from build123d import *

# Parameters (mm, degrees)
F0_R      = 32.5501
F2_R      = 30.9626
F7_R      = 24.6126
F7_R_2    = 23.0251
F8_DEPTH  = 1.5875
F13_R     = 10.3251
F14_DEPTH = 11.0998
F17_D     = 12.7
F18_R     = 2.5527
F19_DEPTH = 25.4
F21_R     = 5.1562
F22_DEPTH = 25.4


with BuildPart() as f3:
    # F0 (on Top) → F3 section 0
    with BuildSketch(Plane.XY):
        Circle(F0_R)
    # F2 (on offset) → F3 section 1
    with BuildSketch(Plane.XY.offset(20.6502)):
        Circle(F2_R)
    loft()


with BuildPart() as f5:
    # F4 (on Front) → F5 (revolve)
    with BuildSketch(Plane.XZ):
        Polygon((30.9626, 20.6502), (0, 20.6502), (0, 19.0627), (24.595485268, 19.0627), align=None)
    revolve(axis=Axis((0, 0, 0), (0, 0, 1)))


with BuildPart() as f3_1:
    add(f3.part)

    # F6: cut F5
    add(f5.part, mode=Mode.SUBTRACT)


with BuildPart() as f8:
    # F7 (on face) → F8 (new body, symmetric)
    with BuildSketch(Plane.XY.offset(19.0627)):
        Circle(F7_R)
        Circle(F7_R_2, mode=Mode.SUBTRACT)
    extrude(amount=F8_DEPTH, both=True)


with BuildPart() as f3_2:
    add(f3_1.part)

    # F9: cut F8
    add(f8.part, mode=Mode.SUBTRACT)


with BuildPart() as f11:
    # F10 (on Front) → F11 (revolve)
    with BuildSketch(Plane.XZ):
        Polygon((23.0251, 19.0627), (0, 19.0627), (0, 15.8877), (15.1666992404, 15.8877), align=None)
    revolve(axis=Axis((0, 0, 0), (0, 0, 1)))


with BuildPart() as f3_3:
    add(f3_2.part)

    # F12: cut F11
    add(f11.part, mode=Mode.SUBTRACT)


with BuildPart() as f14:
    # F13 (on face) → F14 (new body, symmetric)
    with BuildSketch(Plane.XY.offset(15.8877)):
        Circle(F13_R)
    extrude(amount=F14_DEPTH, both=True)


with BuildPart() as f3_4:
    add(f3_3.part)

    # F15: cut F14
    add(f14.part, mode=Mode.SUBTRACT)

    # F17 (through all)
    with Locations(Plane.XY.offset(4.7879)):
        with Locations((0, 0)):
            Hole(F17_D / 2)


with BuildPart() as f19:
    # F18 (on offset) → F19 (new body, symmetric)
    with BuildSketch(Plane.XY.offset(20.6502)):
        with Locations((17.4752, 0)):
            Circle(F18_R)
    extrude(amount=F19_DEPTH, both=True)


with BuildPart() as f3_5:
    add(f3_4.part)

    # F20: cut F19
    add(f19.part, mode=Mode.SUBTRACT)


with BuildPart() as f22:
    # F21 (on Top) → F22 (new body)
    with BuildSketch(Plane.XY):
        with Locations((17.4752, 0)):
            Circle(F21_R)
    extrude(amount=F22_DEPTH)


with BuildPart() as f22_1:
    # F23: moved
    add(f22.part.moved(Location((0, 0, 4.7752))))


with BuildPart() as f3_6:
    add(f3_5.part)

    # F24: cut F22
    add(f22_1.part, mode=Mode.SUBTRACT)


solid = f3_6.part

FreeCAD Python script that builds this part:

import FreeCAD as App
import Part
import Sketcher

V = App.Vector
Q = App.Units.Quantity

doc = App.newDocument("Part")
params = doc.addObject("Spreadsheet::Sheet", "Params")
for row, (alias, value) in enumerate([
    ("sketch1_diameter", "2.563 in"),
    ("sketch2_diameter", "2.438 in"),
    ("sketch3_width", "1.219 in"),
    ("sketch3_height", "0.0625 in"),
    ("revolution_angle", "360 deg"),
    ("sketch4_diameter", "1.938 in"),
    ("sketch4_diameter2", "1.813 in"),
    ("pad1_length", "0.125 in"),
    ("sketch5_height", "0.125 in"),
    ("revolution2_angle", "360 deg"),
    ("sketch6_diameter", "0.813 in"),
    ("pad2_length", "0.874 in"),
    ("sketch7_diameter", "0.5 in"),
    ("hole_diameter", "0.5 in"),
    ("sketch8_diameter", "0.201 in"),
    ("pad3_length", "2 in"),
    ("sketch9_diameter", "0.406 in"),
    ("pad4_length", "1 in"),
], start=1):
    params.set(f"A{row}", alias)
    params.set(f"B{row}", "=" + value)
    params.setAlias(f"B{row}", alias)

body = doc.addObject("PartDesign::Body", "Body")

# Sketch on XY plane
sketch1 = doc.addObject("Sketcher::SketchObject", "Sketch")
body.addObject(sketch1)
sketch1.AttachmentSupport = (doc.XY_Plane, [""])
sketch1.MapMode = "FlatFace"
sketch1.addGeometry(Part.Circle(V(0, 0, 0), V(0, 0, 1), 33), False)
sketch1.addConstraint([
    Sketcher.Constraint("Coincident", 0, 3, -1, 1),
    Sketcher.Constraint("Diameter", 0, Q("2.563 in")),
])
sketch1.setExpression("Constraints[1]", "Params.sketch1_diameter")

# Sketch on XY plane
sketch2 = doc.addObject("Sketcher::SketchObject", "Sketch001")
body.addObject(sketch2)
sketch2.AttachmentSupport = (doc.XY_Plane, [""])
sketch2.MapMode = "FlatFace"
sketch2.AttachmentOffset = App.Placement(V(0, 0, 0.813 * 25.4), App.Rotation())
sketch2.addGeometry(Part.Circle(V(0, 0, 0), V(0, 0, 1), 31), False)
sketch2.addConstraint([
    Sketcher.Constraint("Coincident", 0, 3, -1, 1),
    Sketcher.Constraint("Diameter", 0, Q("2.438 in")),
])
sketch2.setExpression("Constraints[1]", "Params.sketch2_diameter")

additiveloft = doc.addObject("PartDesign::AdditiveLoft", "AdditiveLoft")
body.addObject(additiveloft)
additiveloft.Profile = sketch1
additiveloft.Sections = [sketch2]
body2 = doc.addObject("PartDesign::Body", "Body001")

# Sketch on XZ plane
sketch3 = doc.addObject("Sketcher::SketchObject", "Sketch002")
body2.addObject(sketch3)
sketch3.AttachmentSupport = (doc.getObject("XZ_Plane001"), [""])
sketch3.MapMode = "FlatFace"
sketch3.addGeometry([
    Part.LineSegment(V(31, 20.7, 0), V(0, 20.7, 0)),
    Part.LineSegment(V(0, 20.7, 0), V(0, 19.1, 0)),
    Part.LineSegment(V(0, 19.1, 0), V(24.6, 19.1, 0)),
    Part.LineSegment(V(24.6, 19.1, 0), V(31, 20.7, 0)),
], False)
sketch3.addConstraint([
    Sketcher.Constraint("Coincident", 0, 2, 1, 1),
    Sketcher.Constraint("Coincident", 1, 2, 2, 1),
    Sketcher.Constraint("Coincident", 2, 2, 3, 1),
    Sketcher.Constraint("Coincident", 3, 2, 0, 1),
    Sketcher.Constraint("Horizontal", 0),
    Sketcher.Constraint("Vertical", 1),
    Sketcher.Constraint("Horizontal", 2),
    Sketcher.Constraint("PointOnObject", 0, 2, -2),
    Sketcher.Constraint("Angle", 3, Q("14 deg")),
    Sketcher.Constraint("DistanceX", 0, 2, 0, 1, Q("1.219 in")),
    Sketcher.Constraint("DistanceY", 1, 2, 1, 1, Q("0.0625 in")),
    Sketcher.Constraint("DistanceY", -1, 1, 0, 2, Q("0.813 in")),
])
sketch3.setExpression("Constraints[9]", "Params.sketch3_width")
sketch3.setExpression("Constraints[10]", "Params.sketch3_height")
revolution = doc.addObject("PartDesign::Revolution", "Revolution")
body2.addObject(revolution)
revolution.Profile = sketch3
revolution.ReferenceAxis = (sketch3, ["V_Axis"])
revolution.setExpression("Angle", "Params.revolution_angle")
doc.recompute()

boolean = doc.addObject("PartDesign::Boolean", "Boolean")
body.addObject(boolean)
boolean.Type = "Cut"
boolean.addObjects([body2])
body3 = doc.addObject("PartDesign::Body", "Body002")

# Sketch on XY plane
sketch4 = doc.addObject("Sketcher::SketchObject", "Sketch003")
body3.addObject(sketch4)
sketch4.AttachmentSupport = (doc.getObject("XY_Plane002"), [""])
sketch4.MapMode = "FlatFace"
sketch4.AttachmentOffset = App.Placement(V(0, 0, 0.7505 * 25.4), App.Rotation())
sketch4.addGeometry([
    Part.Circle(V(0, 0, 0), V(0, 0, 1), 25),
    Part.Circle(V(0, 0, 0), V(0, 0, 1), 23),
], False)
sketch4.addConstraint([
    Sketcher.Constraint("Coincident", 0, 3, -1, 1),
    Sketcher.Constraint("Coincident", 1, 3, -1, 1),
    Sketcher.Constraint("Diameter", 0, Q("1.938 in")),
    Sketcher.Constraint("Diameter", 1, Q("1.813 in")),
])
sketch4.setExpression("Constraints[2]", "Params.sketch4_diameter")
sketch4.setExpression("Constraints[3]", "Params.sketch4_diameter2")
pad1 = doc.addObject("PartDesign::Pad", "Pad")
body3.addObject(pad1)
pad1.Profile = sketch4
pad1.setExpression("Length", "Params.pad1_length")
pad1.Midplane = True
doc.recompute()

boolean2 = doc.addObject("PartDesign::Boolean", "Boolean001")
body.addObject(boolean2)
boolean2.Type = "Cut"
boolean2.addObjects([body3])
body4 = doc.addObject("PartDesign::Body", "Body003")

# Sketch on XZ plane
sketch5 = doc.addObject("Sketcher::SketchObject", "Sketch004")
body4.addObject(sketch5)
sketch5.AttachmentSupport = (doc.getObject("XZ_Plane003"), [""])
sketch5.MapMode = "FlatFace"
sketch5.addGeometry([
    Part.LineSegment(V(23, 19.1, 0), V(0, 19.1, 0)),
    Part.LineSegment(V(0, 19.1, 0), V(0, 15.9, 0)),
    Part.LineSegment(V(0, 15.9, 0), V(15.2, 15.9, 0)),
    Part.LineSegment(V(15.2, 15.9, 0), V(23, 19.1, 0)),
], False)
sketch5.addConstraint([
    Sketcher.Constraint("Coincident", 0, 2, 1, 1),
    Sketcher.Constraint("Coincident", 1, 2, 2, 1),
    Sketcher.Constraint("Coincident", 2, 2, 3, 1),
    Sketcher.Constraint("Coincident", 3, 2, 0, 1),
    Sketcher.Constraint("Horizontal", 0),
    Sketcher.Constraint("Vertical", 1),
    Sketcher.Constraint("Horizontal", 2),
    Sketcher.Constraint("PointOnObject", 0, 2, -2),
    Sketcher.Constraint("Angle", 3, Q("22 deg")),
    Sketcher.Constraint("DistanceY", 1, 2, 1, 1, Q("0.125 in")),
    Sketcher.Constraint("DistanceX", 0, 2, 0, 1, Q("0.9065 in")),
    Sketcher.Constraint("DistanceY", -1, 1, 0, 2, Q("0.7505 in")),
])
sketch5.setExpression("Constraints[9]", "Params.sketch5_height")
revolution2 = doc.addObject("PartDesign::Revolution", "Revolution001")
body4.addObject(revolution2)
revolution2.Profile = sketch5
revolution2.ReferenceAxis = (sketch5, ["V_Axis"])
revolution2.setExpression("Angle", "Params.revolution2_angle")
doc.recompute()

boolean3 = doc.addObject("PartDesign::Boolean", "Boolean002")
body.addObject(boolean3)
boolean3.Type = "Cut"
boolean3.addObjects([body4])
body5 = doc.addObject("PartDesign::Body", "Body004")

# Sketch on XY plane
sketch6 = doc.addObject("Sketcher::SketchObject", "Sketch005")
body5.addObject(sketch6)
sketch6.AttachmentSupport = (doc.getObject("XY_Plane004"), [""])
sketch6.MapMode = "FlatFace"
sketch6.AttachmentOffset = App.Placement(V(0, 0, 0.6255 * 25.4), App.Rotation())
sketch6.addGeometry(Part.Circle(V(0, 0, 0), V(0, 0, 1), 10), False)
sketch6.addConstraint([
    Sketcher.Constraint("Coincident", 0, 3, -1, 1),
    Sketcher.Constraint("Diameter", 0, Q("0.813 in")),
])
sketch6.setExpression("Constraints[1]", "Params.sketch6_diameter")
pad2 = doc.addObject("PartDesign::Pad", "Pad001")
body5.addObject(pad2)
pad2.Profile = sketch6
pad2.setExpression("Length", "Params.pad2_length")
pad2.Midplane = True
doc.recompute()

boolean4 = doc.addObject("PartDesign::Boolean", "Boolean003")
body.addObject(boolean4)
boolean4.Type = "Cut"
boolean4.addObjects([body5])

# Sketch on XY plane
sketch7 = doc.addObject("Sketcher::SketchObject", "Sketch006")
body.addObject(sketch7)
sketch7.AttachmentSupport = (doc.XY_Plane, [""])
sketch7.MapMode = "FlatFace"
sketch7.AttachmentOffset = App.Placement(V(0, 0, 0.1885 * 25.4), App.Rotation())
sketch7.addGeometry(Part.Circle(V(0, 0, 0), V(0, 0, 1), 6), False)
sketch7.addConstraint([
    Sketcher.Constraint("Coincident", 0, 3, -1, 1),
    Sketcher.Constraint("Diameter", 0, Q("0.5 in")),
])
sketch7.setExpression("Constraints[1]", "Params.sketch7_diameter")
doc.recompute()
hole = doc.addObject("PartDesign::Hole", "Hole")
body.addObject(hole)
hole.Profile = sketch7
hole.ThreadType = "None"
hole.setExpression("Diameter", "Params.hole_diameter")
hole.DepthType = "ThroughAll"
body6 = doc.addObject("PartDesign::Body", "Body005")

# Sketch on XY plane
sketch8 = doc.addObject("Sketcher::SketchObject", "Sketch007")
body6.addObject(sketch8)
sketch8.AttachmentSupport = (doc.getObject("XY_Plane005"), [""])
sketch8.MapMode = "FlatFace"
sketch8.AttachmentOffset = App.Placement(V(0, 0, 0.813 * 25.4), App.Rotation())
sketch8.addGeometry(Part.Circle(V(17.5, 0, 0), V(0, 0, 1), 2.6), False)
sketch8.addConstraint([
    Sketcher.Constraint("PointOnObject", 0, 3, -1),
    Sketcher.Constraint("Diameter", 0, Q("0.201 in")),
    Sketcher.Constraint("DistanceX", -1, 1, 0, 3, Q("0.688 in")),
])
sketch8.setExpression("Constraints[1]", "Params.sketch8_diameter")
pad3 = doc.addObject("PartDesign::Pad", "Pad002")
body6.addObject(pad3)
pad3.Profile = sketch8
pad3.setExpression("Length", "Params.pad3_length")
pad3.Midplane = True
doc.recompute()

boolean5 = doc.addObject("PartDesign::Boolean", "Boolean004")
body.addObject(boolean5)
boolean5.Type = "Cut"
boolean5.addObjects([body6])
body7 = doc.addObject("PartDesign::Body", "Body006")

# Sketch on XY plane
sketch9 = doc.addObject("Sketcher::SketchObject", "Sketch008")
body7.addObject(sketch9)
sketch9.AttachmentSupport = (doc.getObject("XY_Plane006"), [""])
sketch9.MapMode = "FlatFace"
sketch9.addGeometry(Part.Circle(V(17, 0, 0), V(0, 0, 1), 5), False)
sketch9.addConstraint([
    Sketcher.Constraint("PointOnObject", 0, 3, -1),
    Sketcher.Constraint("Diameter", 0, Q("0.406 in")),
    Sketcher.Constraint("DistanceX", -1, 1, 0, 3, Q("0.688 in")),
])
sketch9.setExpression("Constraints[1]", "Params.sketch9_diameter")
pad4 = doc.addObject("PartDesign::Pad", "Pad003")
body7.addObject(pad4)
pad4.Profile = sketch9
pad4.setExpression("Length", "Params.pad4_length")
body8 = doc.addObject("PartDesign::Body", "Body007")
doc.recompute()

body7.Placement = App.Placement(V(0, 0, 4.7752), App.Rotation(V(0, 0, 1), 0))
boolean6 = doc.addObject("PartDesign::Boolean", "Boolean005")
body8.addObject(boolean6)
boolean6.Type = "Fuse"
boolean6.addObjects([body7])
doc.recompute()

boolean7 = doc.addObject("PartDesign::Boolean", "Boolean006")
body.addObject(boolean7)
boolean7.Type = "Cut"
boolean7.addObjects([body8])

doc.recompute()
